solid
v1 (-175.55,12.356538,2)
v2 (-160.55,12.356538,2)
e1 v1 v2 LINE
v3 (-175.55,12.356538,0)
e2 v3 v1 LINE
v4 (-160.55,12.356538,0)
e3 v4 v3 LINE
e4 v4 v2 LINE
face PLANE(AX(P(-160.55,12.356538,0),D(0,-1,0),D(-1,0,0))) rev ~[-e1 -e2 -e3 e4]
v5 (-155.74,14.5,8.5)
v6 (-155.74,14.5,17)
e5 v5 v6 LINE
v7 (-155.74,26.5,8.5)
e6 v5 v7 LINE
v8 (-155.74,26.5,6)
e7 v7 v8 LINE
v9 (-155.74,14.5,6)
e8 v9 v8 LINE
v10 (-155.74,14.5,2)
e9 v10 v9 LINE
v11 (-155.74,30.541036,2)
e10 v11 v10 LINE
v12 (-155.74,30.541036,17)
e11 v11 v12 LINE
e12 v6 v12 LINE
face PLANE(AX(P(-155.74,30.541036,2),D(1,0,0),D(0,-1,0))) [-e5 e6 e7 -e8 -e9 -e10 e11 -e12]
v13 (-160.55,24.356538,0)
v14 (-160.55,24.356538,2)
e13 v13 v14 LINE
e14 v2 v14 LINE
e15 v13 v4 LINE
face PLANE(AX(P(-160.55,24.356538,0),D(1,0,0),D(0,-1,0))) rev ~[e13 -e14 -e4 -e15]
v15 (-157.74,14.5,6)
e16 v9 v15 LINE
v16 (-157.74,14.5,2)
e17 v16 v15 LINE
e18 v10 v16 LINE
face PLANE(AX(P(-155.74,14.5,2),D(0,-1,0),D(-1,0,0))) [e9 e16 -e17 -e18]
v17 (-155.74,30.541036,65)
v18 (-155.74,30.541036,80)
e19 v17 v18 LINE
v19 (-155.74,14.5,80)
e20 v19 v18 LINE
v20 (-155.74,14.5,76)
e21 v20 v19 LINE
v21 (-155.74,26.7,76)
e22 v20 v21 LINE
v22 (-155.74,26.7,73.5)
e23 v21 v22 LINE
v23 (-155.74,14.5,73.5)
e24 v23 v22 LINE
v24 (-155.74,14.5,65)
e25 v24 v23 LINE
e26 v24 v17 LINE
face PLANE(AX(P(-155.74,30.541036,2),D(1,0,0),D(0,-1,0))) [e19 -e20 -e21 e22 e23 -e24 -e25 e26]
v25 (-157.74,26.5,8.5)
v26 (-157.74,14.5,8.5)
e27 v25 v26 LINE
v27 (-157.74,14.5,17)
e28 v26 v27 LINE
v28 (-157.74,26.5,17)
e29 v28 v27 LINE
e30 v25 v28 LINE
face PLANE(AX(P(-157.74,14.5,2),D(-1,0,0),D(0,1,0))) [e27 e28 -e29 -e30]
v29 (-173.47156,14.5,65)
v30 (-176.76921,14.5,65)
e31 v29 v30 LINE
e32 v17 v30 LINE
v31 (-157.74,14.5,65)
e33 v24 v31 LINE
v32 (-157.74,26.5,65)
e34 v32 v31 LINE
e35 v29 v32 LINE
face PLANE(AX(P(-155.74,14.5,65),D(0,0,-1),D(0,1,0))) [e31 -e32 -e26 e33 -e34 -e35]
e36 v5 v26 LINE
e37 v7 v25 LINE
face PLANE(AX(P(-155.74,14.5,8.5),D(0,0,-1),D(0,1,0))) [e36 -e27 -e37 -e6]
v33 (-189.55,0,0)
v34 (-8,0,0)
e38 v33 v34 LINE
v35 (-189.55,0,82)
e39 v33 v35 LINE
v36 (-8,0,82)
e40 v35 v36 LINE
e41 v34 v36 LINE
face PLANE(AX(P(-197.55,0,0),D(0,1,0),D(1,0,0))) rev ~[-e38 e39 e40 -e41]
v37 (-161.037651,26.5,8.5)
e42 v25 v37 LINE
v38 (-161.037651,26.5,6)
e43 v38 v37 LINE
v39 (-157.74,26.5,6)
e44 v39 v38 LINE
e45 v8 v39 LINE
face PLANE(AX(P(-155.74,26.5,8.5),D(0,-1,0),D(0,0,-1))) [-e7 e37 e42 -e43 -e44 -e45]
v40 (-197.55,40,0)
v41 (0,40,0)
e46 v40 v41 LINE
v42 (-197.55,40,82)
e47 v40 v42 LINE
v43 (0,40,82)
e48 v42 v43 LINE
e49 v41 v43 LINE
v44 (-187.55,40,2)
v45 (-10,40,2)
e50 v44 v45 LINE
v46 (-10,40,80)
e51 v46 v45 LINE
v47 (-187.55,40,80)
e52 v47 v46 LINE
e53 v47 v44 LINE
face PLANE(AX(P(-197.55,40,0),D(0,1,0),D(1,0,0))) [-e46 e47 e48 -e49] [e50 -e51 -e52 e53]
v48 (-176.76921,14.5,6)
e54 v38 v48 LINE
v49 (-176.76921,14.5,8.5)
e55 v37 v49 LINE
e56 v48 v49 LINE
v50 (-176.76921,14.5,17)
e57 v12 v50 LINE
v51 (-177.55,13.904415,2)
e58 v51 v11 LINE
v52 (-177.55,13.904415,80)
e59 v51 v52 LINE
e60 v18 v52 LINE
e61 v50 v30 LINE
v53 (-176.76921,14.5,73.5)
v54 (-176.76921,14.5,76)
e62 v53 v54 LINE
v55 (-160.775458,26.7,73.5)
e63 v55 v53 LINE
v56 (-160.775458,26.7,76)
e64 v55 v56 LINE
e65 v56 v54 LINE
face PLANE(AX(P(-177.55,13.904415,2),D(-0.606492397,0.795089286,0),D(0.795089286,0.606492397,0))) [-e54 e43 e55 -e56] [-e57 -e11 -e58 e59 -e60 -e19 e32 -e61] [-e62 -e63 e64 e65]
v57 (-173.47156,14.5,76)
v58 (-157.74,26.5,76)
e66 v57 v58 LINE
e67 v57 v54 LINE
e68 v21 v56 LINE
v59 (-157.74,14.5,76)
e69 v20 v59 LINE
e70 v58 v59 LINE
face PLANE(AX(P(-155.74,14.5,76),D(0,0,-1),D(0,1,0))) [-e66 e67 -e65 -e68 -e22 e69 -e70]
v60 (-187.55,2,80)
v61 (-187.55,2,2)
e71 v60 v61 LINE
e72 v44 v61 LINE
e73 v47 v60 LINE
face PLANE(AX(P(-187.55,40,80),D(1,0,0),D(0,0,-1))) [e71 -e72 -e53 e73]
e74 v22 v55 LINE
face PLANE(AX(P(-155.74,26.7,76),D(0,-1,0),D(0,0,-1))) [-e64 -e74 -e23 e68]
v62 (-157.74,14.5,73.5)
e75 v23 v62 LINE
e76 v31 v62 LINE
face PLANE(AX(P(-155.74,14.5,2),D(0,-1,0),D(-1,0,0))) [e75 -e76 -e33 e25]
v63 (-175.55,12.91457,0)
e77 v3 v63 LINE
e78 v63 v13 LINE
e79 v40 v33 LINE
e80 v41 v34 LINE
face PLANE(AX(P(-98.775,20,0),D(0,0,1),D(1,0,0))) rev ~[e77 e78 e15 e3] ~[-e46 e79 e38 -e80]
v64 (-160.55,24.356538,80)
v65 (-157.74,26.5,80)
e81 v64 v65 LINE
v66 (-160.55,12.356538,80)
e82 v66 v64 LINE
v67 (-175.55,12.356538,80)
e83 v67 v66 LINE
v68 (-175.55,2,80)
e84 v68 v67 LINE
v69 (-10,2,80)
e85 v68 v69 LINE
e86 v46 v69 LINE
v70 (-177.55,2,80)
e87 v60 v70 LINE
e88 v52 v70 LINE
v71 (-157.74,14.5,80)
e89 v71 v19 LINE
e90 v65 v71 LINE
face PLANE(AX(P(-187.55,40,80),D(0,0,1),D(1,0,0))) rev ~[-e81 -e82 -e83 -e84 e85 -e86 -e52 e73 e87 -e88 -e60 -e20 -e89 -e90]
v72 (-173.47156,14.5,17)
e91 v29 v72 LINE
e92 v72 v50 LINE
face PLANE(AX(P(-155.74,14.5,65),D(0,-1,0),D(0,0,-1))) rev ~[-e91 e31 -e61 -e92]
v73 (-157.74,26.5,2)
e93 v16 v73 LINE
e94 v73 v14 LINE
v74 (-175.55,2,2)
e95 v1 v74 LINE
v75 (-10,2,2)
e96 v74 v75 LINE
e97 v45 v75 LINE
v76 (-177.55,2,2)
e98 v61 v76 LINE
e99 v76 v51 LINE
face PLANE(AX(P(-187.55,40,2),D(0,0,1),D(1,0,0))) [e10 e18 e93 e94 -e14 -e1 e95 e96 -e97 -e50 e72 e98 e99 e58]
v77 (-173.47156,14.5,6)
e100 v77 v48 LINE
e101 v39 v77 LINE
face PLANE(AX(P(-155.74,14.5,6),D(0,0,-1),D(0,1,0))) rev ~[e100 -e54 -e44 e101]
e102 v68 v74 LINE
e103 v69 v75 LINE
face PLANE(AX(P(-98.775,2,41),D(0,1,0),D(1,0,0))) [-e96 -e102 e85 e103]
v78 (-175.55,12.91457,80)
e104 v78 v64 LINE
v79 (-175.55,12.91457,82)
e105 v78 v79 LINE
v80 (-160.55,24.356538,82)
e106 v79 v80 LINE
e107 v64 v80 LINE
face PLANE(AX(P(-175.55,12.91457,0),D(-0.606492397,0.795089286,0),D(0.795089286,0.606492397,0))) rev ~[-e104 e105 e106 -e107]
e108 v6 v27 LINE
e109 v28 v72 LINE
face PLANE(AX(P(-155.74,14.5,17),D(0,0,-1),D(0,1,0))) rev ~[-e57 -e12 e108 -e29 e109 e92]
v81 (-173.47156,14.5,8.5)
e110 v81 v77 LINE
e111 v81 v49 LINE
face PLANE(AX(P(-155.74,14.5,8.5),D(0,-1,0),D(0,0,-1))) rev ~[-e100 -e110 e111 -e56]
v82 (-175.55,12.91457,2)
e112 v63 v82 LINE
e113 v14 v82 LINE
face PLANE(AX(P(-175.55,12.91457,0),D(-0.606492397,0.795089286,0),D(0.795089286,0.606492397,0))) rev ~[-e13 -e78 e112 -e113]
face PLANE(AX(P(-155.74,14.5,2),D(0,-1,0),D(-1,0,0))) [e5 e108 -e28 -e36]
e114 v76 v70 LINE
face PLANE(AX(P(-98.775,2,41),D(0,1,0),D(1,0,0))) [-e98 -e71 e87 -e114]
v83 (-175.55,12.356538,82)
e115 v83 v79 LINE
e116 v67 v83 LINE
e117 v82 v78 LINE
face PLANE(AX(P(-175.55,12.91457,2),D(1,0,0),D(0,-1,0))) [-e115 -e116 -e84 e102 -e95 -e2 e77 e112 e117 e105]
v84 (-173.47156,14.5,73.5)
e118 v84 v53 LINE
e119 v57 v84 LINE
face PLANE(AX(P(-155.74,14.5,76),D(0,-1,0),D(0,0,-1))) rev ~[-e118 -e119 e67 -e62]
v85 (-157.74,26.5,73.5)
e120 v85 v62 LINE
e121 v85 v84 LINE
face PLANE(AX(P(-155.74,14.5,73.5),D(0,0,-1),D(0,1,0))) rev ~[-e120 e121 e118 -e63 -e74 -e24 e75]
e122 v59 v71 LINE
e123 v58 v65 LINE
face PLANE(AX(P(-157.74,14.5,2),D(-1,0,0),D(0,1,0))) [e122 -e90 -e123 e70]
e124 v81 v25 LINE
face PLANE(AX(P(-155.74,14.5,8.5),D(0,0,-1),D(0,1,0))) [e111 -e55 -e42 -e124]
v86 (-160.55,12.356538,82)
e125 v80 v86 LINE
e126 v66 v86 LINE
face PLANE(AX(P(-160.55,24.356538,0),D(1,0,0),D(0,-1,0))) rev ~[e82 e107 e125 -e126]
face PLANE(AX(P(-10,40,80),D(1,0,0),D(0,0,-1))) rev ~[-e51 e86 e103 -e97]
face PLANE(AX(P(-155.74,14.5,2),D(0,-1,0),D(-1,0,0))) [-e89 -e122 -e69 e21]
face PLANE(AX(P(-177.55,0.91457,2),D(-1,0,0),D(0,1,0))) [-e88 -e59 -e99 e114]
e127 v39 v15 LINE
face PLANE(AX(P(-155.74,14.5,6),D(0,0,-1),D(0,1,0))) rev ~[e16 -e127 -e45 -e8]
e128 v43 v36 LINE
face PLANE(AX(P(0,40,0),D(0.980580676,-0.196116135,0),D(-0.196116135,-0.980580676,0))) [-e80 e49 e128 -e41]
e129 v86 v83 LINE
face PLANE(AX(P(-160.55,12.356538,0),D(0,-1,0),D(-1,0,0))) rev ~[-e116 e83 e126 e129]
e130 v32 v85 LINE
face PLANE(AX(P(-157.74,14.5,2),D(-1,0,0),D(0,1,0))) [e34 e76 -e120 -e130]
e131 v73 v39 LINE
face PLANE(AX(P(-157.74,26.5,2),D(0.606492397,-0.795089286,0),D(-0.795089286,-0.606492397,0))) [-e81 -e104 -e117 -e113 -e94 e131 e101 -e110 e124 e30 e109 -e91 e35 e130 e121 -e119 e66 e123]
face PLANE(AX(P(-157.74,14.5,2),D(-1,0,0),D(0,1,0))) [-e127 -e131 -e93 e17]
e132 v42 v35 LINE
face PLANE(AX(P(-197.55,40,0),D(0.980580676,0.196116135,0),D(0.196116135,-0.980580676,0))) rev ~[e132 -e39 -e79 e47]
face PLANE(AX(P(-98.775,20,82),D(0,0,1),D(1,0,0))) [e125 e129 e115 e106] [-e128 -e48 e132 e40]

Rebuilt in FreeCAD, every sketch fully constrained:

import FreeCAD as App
import Part
import Sketcher
from FreeCAD import Vector

doc = App.newDocument("Part")
params = doc.addObject("Spreadsheet::Sheet", "Params")
for row, (alias, value) in enumerate([
    ("sketch1_height", "40 mm"),
    ("sketch1_width", "197.55 mm"),
    ("pad1_length", "82 mm"),
    ("sketch2_height", "78 mm"),
    ("sketch2_width", "177.55 mm"),
    ("pocket1_length", "38 mm"),
    ("sketch3_width", "8 mm"),
    ("sketch3_height", "40 mm"),
    ("pocket2_length", "82 mm"),
    ("sketch4_width", "2 mm"),
    ("sketch4_height", "12 mm"),
    ("sketch4_length", "22.4 mm"),
    ("pad2_length", "78.5 mm"),
    ("sketch5_height", "48 mm"),
    ("pocket3_length", "26.4 mm"),
    ("sketch6_width", "12.2 mm"),
    ("sketch6_height", "2.5 mm"),
    ("pocket4_length", "26.4 mm"),
    ("sketch7_width", "12 mm"),
    ("sketch7_height", "2.5 mm"),
    ("pocket5_length", "26.4 mm"),
    ("sketch8_width", "15 mm"),
    ("sketch8_height", "12 mm"),
    ("pocket6_length", "82 mm"),
], start=1):
    params.set(f"A{row}", alias)
    params.set(f"B{row}", "=" + value)
    params.setAlias(f"B{row}", alias)

body = doc.addObject("PartDesign::Body", "Body")

# Sketch on XY plane
sketch1 = body.newObject("Sketcher::SketchObject", "Sketch")
sketch1.AttachmentSupport = (doc.getObject("XY_Plane"), [""])
sketch1.MapMode = "FlatFace"
sketch1.addGeometry([
    Part.LineSegment(Vector(-198, 40, 0), Vector(-198, 0, 0)),
    Part.LineSegment(Vector(-198, 0, 0), Vector(0, 0, 0)),
    Part.LineSegment(Vector(0, 0, 0), Vector(0, 40, 0)),
    Part.LineSegment(Vector(0, 40, 0), Vector(-198, 40, 0)),
], False)
sketch1.addConstraint([
    Sketcher.Constraint("Coincident", 0, 2, 1, 1),
    Sketcher.Constraint("Coincident", 1, 2, 2, 1),
    Sketcher.Constraint("Coincident", 2, 2, 3, 1),
    Sketcher.Constraint("Coincident", 3, 2, 0, 1),
    Sketcher.Constraint("Vertical", 0),
    Sketcher.Constraint("Horizontal", 1),
    Sketcher.Constraint("Vertical", 2),
    Sketcher.Constraint("Horizontal", 3),
    Sketcher.Constraint("Coincident", 1, 2, -1, 1),
    Sketcher.Constraint("DistanceY", 0, 2, 0, 1, 40.0),
    Sketcher.Constraint("DistanceX", 1, 1, 1, 2, 197.55),
])
sketch1.setExpression("Constraints[9]", "Params.sketch1_height")
sketch1.setExpression("Constraints[10]", "Params.sketch1_width")
pad1 = body.newObject("PartDesign::Pad", "Pad")
pad1.Profile = sketch1
pad1.setExpression("Length", "Params.pad1_length")

# Sketch on XZ plane
sketch2 = body.newObject("Sketcher::SketchObject", "Sketch001")
sketch2.AttachmentSupport = (doc.getObject("XZ_Plane"), [""])
sketch2.MapMode = "FlatFace"
sketch2.AttachmentOffset = App.Placement(Vector(0, 0, -40), App.Rotation())
sketch2.addGeometry([
    Part.LineSegment(Vector(-188, 2, 0), Vector(-188, 80, 0)),
    Part.LineSegment(Vector(-188, 80, 0), Vector(-10, 80, 0)),
    Part.LineSegment(Vector(-10, 80, 0), Vector(-10, 2, 0)),
    Part.LineSegment(Vector(-10, 2, 0), Vector(-188, 2, 0)),
], False)
sketch2.addConstraint([
    Sketcher.Constraint("Coincident", 0, 2, 1, 1),
    Sketcher.Constraint("Coincident", 1, 2, 2, 1),
    Sketcher.Constraint("Coincident", 2, 2, 3, 1),
    Sketcher.Constraint("Coincident", 3, 2, 0, 1),
    Sketcher.Constraint("Vertical", 0),
    Sketcher.Constraint("Horizontal", 1),
    Sketcher.Constraint("Vertical", 2),
    Sketcher.Constraint("Horizontal", 3),
    Sketcher.Constraint("DistanceY", 0, 1, 0, 2, 78.0),
    Sketcher.Constraint("DistanceY", -1, 1, 0, 2, 80.0),
    Sketcher.Constraint("DistanceX", 1, 2, -1, 1, 10.0),
    Sketcher.Constraint("DistanceX", 1, 1, 1, 2, 177.55),
])
sketch2.setExpression("Constraints[8]", "Params.sketch2_height")
sketch2.setExpression("Constraints[11]", "Params.sketch2_width")
pocket1 = body.newObject("PartDesign::Pocket", "Pocket")
pocket1.Profile = sketch2
pocket1.setExpression("Length", "Params.pocket1_length")
pocket1.Reversed = True

# Sketch on XY plane
sketch3 = body.newObject("Sketcher::SketchObject", "Sketch002")
sketch3.AttachmentSupport = (doc.getObject("XY_Plane"), [""])
sketch3.MapMode = "FlatFace"
sketch3.addGeometry([
    Part.LineSegment(Vector(-190, 0, 0), Vector(-198, 40, 0)),  # 0
    Part.LineSegment(Vector(-198, 40, 0), Vector(-198, 0, 0)),  # 1
    Part.LineSegment(Vector(-198, 0, 0), Vector(-190, 0, 0)),  # 2
    Part.LineSegment(Vector(0, 40, 0), Vector(-8, 0, 0)),  # 3
    Part.LineSegment(Vector(-8, 0, 0), Vector(0, 0, 0)),  # 4
    Part.LineSegment(Vector(0, 0, 0), Vector(0, 40, 0)),  # 5
], False)
sketch3.addConstraint([
    Sketcher.Constraint("Coincident", 0, 2, 1, 1),
    Sketcher.Constraint("Coincident", 1, 2, 2, 1),
    Sketcher.Constraint("Coincident", 2, 2, 0, 1),
    Sketcher.Constraint("Coincident", 3, 2, 4, 1),
    Sketcher.Constraint("Coincident", 4, 2, 5, 1),
    Sketcher.Constraint("Coincident", 5, 2, 3, 1),
    Sketcher.Constraint("Vertical", 1),
    Sketcher.Constraint("Horizontal", 2),
    Sketcher.Constraint("Horizontal", 4),
    Sketcher.Constraint("Vertical", 5),
    Sketcher.Constraint("Coincident", 4, 2, -1, 1),
    Sketcher.Constraint("PointOnObject", 1, 2, -1),
    Sketcher.Constraint("Horizontal", 0, 2, 5, 2),
    Sketcher.Constraint("Equal", 2, 4),
    Sketcher.Constraint("DistanceX", 2, 1, 2, 2, 8.0),
    Sketcher.Constraint("DistanceY", 1, 2, 1, 1, 40.0),
    Sketcher.Constraint("DistanceX", 0, 2, -1, 1, 197.55),
])
sketch3.setExpression("Constraints[14]", "Params.sketch3_width")
sketch3.setExpression("Constraints[15]", "Params.sketch3_height")
pocket2 = body.newObject("PartDesign::Pocket", "Pocket001")
pocket2.Profile = sketch3
pocket2.setExpression("Length", "Params.pocket2_length")
pocket2.Reversed = True

# Sketch on XY plane
sketch4 = body.newObject("Sketcher::SketchObject", "Sketch003")
sketch4.AttachmentSupport = (doc.getObject("XY_Plane"), [""])
sketch4.MapMode = "FlatFace"
sketch4.AttachmentOffset = App.Placement(Vector(0, 0, 2), App.Rotation())
sketch4.addGeometry([
    Part.LineSegment(Vector(-175.6, 0.9, 0), Vector(-175.6, 12.9, 0)),  # 0
    Part.LineSegment(Vector(-175.6, 12.9, 0), Vector(-157.7, 26.5, 0)),  # 1
    Part.LineSegment(Vector(-157.7, 26.5, 0), Vector(-157.7, 14.5, 0)),  # 2
    Part.LineSegment(Vector(-157.7, 14.5, 0), Vector(-155.7, 14.5, 0)),  # 3
    Part.LineSegment(Vector(-155.7, 14.5, 0), Vector(-155.7, 30.5, 0)),  # 4
    Part.LineSegment(Vector(-155.7, 30.5, 0), Vector(-177.6, 13.9, 0)),  # 5
    Part.LineSegment(Vector(-177.6, 13.9, 0), Vector(-177.6, 0.9, 0)),  # 6
    Part.LineSegment(Vector(-177.6, 0.9, 0), Vector(-175.6, 0.9, 0)),  # 7
], False)
sketch4.addConstraint([
    Sketcher.Constraint("Coincident", 0, 2, 1, 1),
    Sketcher.Constraint("Coincident", 1, 2, 2, 1),
    Sketcher.Constraint("Coincident", 2, 2, 3, 1),
    Sketcher.Constraint("Coincident", 3, 2, 4, 1),
    Sketcher.Constraint("Coincident", 4, 2, 5, 1),
    Sketcher.Constraint("Coincident", 5, 2, 6, 1),
    Sketcher.Constraint("Coincident", 6, 2, 7, 1),
    Sketcher.Constraint("Coincident", 7, 2, 0, 1),
    Sketcher.Constraint("Vertical", 0),
    Sketcher.Constraint("Vertical", 2),
    Sketcher.Constraint("Horizontal", 3),
    Sketcher.Constraint("Vertical", 4),
    Sketcher.Constraint("Vertical", 6),
    Sketcher.Constraint("Horizontal", 7),
    Sketcher.Constraint("Parallel", 1, 5),
    Sketcher.Constraint("Equal", 3, 7),
    Sketcher.Constraint("Equal", 0, 2),
    Sketcher.Constraint("DistanceX", 3, 1, 3, 2, 2.0),
    Sketcher.Constraint("DistanceY", 0, 1, 0, 2, 12.0),
    Sketcher.Constraint("Distance", 1, 22.4),
    Sketcher.Constraint("DistanceY", -1, 1, 1, 2, 26.5),
    Sketcher.Constraint("DistanceX", 0, 2, -1, 1, 175.55),
    Sketcher.Constraint("DistanceX", 1, 2, -1, 1, 157.74),
    Sketcher.Constraint("DistanceY", 4, 1, 4, 2, 16.041036),
])
sketch4.setExpression("Constraints[17]", "Params.sketch4_width")
sketch4.setExpression("Constraints[18]", "Params.sketch4_height")
sketch4.setExpression("Constraints[19]", "Params.sketch4_length")
pad2 = body.newObject("PartDesign::Pad", "Pad001")
pad2.Profile = sketch4
pad2.setExpression("Length", "Params.pad2_length")

# Sketch on YZ plane
sketch5 = body.newObject("Sketcher::SketchObject", "Sketch004")
sketch5.AttachmentSupport = (doc.getObject("YZ_Plane"), [""])
sketch5.MapMode = "FlatFace"
sketch5.AttachmentOffset = App.Placement(Vector(0, 0, -155.74), App.Rotation())
sketch5.addGeometry([
    Part.LineSegment(Vector(31, 65, 0), Vector(14, 65, 0)),
    Part.LineSegment(Vector(14, 65, 0), Vector(14, 17, 0)),
    Part.LineSegment(Vector(14, 17, 0), Vector(31, 17, 0)),
    Part.LineSegment(Vector(31, 17, 0), Vector(31, 65, 0)),
], False)
sketch5.addConstraint([
    Sketcher.Constraint("Coincident", 0, 2, 1, 1),
    Sketcher.Constraint("Coincident", 1, 2, 2, 1),
    Sketcher.Constraint("Coincident", 2, 2, 3, 1),
    Sketcher.Constraint("Coincident", 3, 2, 0, 1),
    Sketcher.Constraint("Horizontal", 0),
    Sketcher.Constraint("Vertical", 1),
    Sketcher.Constraint("Horizontal", 2),
    Sketcher.Constraint("Vertical", 3),
    Sketcher.Constraint("DistanceY", 1, 2, 1, 1, 48.0),
    Sketcher.Constraint("DistanceY", -1, 1, 0, 2, 65.0),
    Sketcher.Constraint("DistanceX", -1, 1, 0, 2, 14.5),
    Sketcher.Constraint("DistanceX", 0, 2, 0, 1, 16.041036),
])
sketch5.setExpression("Constraints[8]", "Params.sketch5_height")
pocket3 = body.newObject("PartDesign::Pocket", "Pocket002")
pocket3.Profile = sketch5
pocket3.setExpression("Length", "Params.pocket3_length")

# Sketch on YZ plane
sketch6 = body.newObject("Sketcher::SketchObject", "Sketch005")
sketch6.AttachmentSupport = (doc.getObject("YZ_Plane"), [""])
sketch6.MapMode = "FlatFace"
sketch6.AttachmentOffset = App.Placement(Vector(0, 0, -155.74), App.Rotation())
sketch6.addGeometry([
    Part.LineSegment(Vector(26.7, 76, 0), Vector(14.5, 76, 0)),
    Part.LineSegment(Vector(14.5, 76, 0), Vector(14.5, 73.5, 0)),
    Part.LineSegment(Vector(14.5, 73.5, 0), Vector(26.7, 73.5, 0)),
    Part.LineSegment(Vector(26.7, 73.5, 0), Vector(26.7, 76, 0)),
], False)
sketch6.addConstraint([
    Sketcher.Constraint("Coincident", 0, 2, 1, 1),
    Sketcher.Constraint("Coincident", 1, 2, 2, 1),
    Sketcher.Constraint("Coincident", 2, 2, 3, 1),
    Sketcher.Constraint("Coincident", 3, 2, 0, 1),
    Sketcher.Constraint("Horizontal", 0),
    Sketcher.Constraint("Vertical", 1),
    Sketcher.Constraint("Horizontal", 2),
    Sketcher.Constraint("Vertical", 3),
    Sketcher.Constraint("DistanceX", 0, 2, 0, 1, 12.2),
    Sketcher.Constraint("DistanceY", 1, 2, 1, 1, 2.5),
    Sketcher.Constraint("DistanceY", -1, 1, 0, 2, 76.0),
    Sketcher.Constraint("DistanceX", -1, 1, 0, 2, 14.5),
])
sketch6.setExpression("Constraints[8]", "Params.sketch6_width")
sketch6.setExpression("Constraints[9]", "Params.sketch6_height")
pocket4 = body.newObject("PartDesign::Pocket", "Pocket003")
pocket4.Profile = sketch6
pocket4.setExpression("Length", "Params.pocket4_length")

# Sketch on YZ plane
sketch7 = body.newObject("Sketcher::SketchObject", "Sketch006")
sketch7.AttachmentSupport = (doc.getObject("YZ_Plane"), [""])
sketch7.MapMode = "FlatFace"
sketch7.AttachmentOffset = App.Placement(Vector(0, 0, -155.74), App.Rotation())
sketch7.addGeometry([
    Part.LineSegment(Vector(26.5, 8.5, 0), Vector(14.5, 8.5, 0)),
    Part.LineSegment(Vector(14.5, 8.5, 0), Vector(14.5, 6, 0)),
    Part.LineSegment(Vector(14.5, 6, 0), Vector(26.5, 6, 0)),
    Part.LineSegment(Vector(26.5, 6, 0), Vector(26.5, 8.5, 0)),
], False)
sketch7.addConstraint([
    Sketcher.Constraint("Coincident", 0, 2, 1, 1),
    Sketcher.Constraint("Coincident", 1, 2, 2, 1),
    Sketcher.Constraint("Coincident", 2, 2, 3, 1),
    Sketcher.Constraint("Coincident", 3, 2, 0, 1),
    Sketcher.Constraint("Horizontal", 0),
    Sketcher.Constraint("Vertical", 1),
    Sketcher.Constraint("Horizontal", 2),
    Sketcher.Constraint("Vertical", 3),
    Sketcher.Constraint("DistanceX", 0, 2, 0, 1, 12.0),
    Sketcher.Constraint("DistanceY", 1, 2, 1, 1, 2.5),
    Sketcher.Constraint("DistanceY", -1, 1, 1, 2, 6.0),
    Sketcher.Constraint("DistanceX", -1, 1, 0, 2, 14.5),
])
sketch7.setExpression("Constraints[8]", "Params.sketch7_width")
sketch7.setExpression("Constraints[9]", "Params.sketch7_height")
pocket5 = body.newObject("PartDesign::Pocket", "Pocket004")
pocket5.Profile = sketch7
pocket5.setExpression("Length", "Params.pocket5_length")

# Sketch on XY plane
sketch8 = body.newObject("Sketcher::SketchObject", "Sketch007")
sketch8.AttachmentSupport = (doc.getObject("XY_Plane"), [""])
sketch8.MapMode = "FlatFace"
sketch8.addGeometry([
    Part.LineSegment(Vector(-175.6, 12.9, 0), Vector(-160.6, 24.4, 0)),
    Part.LineSegment(Vector(-160.6, 24.4, 0), Vector(-160.6, 12.4, 0)),
    Part.LineSegment(Vector(-160.6, 12.4, 0), Vector(-175.6, 12.4, 0)),
    Part.LineSegment(Vector(-175.6, 12.4, 0), Vector(-175.6, 12.9, 0)),
], False)
sketch8.addConstraint([
    Sketcher.Constraint("Coincident", 0, 2, 1, 1),
    Sketcher.Constraint("Coincident", 1, 2, 2, 1),
    Sketcher.Constraint("Coincident", 2, 2, 3, 1),
    Sketcher.Constraint("Coincident", 3, 2, 0, 1),
    Sketcher.Constraint("Vertical", 1),
    Sketcher.Constraint("Horizontal", 2),
    Sketcher.Constraint("Vertical", 3),
    Sketcher.Constraint("DistanceX", 2, 2, 2, 1, 15.0),
    Sketcher.Constraint("DistanceY", 1, 2, 1, 1, 12.0),
    Sketcher.Constraint("DistanceX", 0, 2, -1, 1, 160.55),
    Sketcher.Constraint("DistanceY", 3, 1, 3, 2, 0.558032),
    Sketcher.Constraint("DistanceY", -1, 1, 0, 2, 24.356538),
])
sketch8.setExpression("Constraints[7]", "Params.sketch8_width")
sketch8.setExpression("Constraints[8]", "Params.sketch8_height")
pocket6 = body.newObject("PartDesign::Pocket", "Pocket005")
pocket6.Profile = sketch8
pocket6.setExpression("Length", "Params.pocket6_length")
pocket6.Reversed = True

doc.recompute()
